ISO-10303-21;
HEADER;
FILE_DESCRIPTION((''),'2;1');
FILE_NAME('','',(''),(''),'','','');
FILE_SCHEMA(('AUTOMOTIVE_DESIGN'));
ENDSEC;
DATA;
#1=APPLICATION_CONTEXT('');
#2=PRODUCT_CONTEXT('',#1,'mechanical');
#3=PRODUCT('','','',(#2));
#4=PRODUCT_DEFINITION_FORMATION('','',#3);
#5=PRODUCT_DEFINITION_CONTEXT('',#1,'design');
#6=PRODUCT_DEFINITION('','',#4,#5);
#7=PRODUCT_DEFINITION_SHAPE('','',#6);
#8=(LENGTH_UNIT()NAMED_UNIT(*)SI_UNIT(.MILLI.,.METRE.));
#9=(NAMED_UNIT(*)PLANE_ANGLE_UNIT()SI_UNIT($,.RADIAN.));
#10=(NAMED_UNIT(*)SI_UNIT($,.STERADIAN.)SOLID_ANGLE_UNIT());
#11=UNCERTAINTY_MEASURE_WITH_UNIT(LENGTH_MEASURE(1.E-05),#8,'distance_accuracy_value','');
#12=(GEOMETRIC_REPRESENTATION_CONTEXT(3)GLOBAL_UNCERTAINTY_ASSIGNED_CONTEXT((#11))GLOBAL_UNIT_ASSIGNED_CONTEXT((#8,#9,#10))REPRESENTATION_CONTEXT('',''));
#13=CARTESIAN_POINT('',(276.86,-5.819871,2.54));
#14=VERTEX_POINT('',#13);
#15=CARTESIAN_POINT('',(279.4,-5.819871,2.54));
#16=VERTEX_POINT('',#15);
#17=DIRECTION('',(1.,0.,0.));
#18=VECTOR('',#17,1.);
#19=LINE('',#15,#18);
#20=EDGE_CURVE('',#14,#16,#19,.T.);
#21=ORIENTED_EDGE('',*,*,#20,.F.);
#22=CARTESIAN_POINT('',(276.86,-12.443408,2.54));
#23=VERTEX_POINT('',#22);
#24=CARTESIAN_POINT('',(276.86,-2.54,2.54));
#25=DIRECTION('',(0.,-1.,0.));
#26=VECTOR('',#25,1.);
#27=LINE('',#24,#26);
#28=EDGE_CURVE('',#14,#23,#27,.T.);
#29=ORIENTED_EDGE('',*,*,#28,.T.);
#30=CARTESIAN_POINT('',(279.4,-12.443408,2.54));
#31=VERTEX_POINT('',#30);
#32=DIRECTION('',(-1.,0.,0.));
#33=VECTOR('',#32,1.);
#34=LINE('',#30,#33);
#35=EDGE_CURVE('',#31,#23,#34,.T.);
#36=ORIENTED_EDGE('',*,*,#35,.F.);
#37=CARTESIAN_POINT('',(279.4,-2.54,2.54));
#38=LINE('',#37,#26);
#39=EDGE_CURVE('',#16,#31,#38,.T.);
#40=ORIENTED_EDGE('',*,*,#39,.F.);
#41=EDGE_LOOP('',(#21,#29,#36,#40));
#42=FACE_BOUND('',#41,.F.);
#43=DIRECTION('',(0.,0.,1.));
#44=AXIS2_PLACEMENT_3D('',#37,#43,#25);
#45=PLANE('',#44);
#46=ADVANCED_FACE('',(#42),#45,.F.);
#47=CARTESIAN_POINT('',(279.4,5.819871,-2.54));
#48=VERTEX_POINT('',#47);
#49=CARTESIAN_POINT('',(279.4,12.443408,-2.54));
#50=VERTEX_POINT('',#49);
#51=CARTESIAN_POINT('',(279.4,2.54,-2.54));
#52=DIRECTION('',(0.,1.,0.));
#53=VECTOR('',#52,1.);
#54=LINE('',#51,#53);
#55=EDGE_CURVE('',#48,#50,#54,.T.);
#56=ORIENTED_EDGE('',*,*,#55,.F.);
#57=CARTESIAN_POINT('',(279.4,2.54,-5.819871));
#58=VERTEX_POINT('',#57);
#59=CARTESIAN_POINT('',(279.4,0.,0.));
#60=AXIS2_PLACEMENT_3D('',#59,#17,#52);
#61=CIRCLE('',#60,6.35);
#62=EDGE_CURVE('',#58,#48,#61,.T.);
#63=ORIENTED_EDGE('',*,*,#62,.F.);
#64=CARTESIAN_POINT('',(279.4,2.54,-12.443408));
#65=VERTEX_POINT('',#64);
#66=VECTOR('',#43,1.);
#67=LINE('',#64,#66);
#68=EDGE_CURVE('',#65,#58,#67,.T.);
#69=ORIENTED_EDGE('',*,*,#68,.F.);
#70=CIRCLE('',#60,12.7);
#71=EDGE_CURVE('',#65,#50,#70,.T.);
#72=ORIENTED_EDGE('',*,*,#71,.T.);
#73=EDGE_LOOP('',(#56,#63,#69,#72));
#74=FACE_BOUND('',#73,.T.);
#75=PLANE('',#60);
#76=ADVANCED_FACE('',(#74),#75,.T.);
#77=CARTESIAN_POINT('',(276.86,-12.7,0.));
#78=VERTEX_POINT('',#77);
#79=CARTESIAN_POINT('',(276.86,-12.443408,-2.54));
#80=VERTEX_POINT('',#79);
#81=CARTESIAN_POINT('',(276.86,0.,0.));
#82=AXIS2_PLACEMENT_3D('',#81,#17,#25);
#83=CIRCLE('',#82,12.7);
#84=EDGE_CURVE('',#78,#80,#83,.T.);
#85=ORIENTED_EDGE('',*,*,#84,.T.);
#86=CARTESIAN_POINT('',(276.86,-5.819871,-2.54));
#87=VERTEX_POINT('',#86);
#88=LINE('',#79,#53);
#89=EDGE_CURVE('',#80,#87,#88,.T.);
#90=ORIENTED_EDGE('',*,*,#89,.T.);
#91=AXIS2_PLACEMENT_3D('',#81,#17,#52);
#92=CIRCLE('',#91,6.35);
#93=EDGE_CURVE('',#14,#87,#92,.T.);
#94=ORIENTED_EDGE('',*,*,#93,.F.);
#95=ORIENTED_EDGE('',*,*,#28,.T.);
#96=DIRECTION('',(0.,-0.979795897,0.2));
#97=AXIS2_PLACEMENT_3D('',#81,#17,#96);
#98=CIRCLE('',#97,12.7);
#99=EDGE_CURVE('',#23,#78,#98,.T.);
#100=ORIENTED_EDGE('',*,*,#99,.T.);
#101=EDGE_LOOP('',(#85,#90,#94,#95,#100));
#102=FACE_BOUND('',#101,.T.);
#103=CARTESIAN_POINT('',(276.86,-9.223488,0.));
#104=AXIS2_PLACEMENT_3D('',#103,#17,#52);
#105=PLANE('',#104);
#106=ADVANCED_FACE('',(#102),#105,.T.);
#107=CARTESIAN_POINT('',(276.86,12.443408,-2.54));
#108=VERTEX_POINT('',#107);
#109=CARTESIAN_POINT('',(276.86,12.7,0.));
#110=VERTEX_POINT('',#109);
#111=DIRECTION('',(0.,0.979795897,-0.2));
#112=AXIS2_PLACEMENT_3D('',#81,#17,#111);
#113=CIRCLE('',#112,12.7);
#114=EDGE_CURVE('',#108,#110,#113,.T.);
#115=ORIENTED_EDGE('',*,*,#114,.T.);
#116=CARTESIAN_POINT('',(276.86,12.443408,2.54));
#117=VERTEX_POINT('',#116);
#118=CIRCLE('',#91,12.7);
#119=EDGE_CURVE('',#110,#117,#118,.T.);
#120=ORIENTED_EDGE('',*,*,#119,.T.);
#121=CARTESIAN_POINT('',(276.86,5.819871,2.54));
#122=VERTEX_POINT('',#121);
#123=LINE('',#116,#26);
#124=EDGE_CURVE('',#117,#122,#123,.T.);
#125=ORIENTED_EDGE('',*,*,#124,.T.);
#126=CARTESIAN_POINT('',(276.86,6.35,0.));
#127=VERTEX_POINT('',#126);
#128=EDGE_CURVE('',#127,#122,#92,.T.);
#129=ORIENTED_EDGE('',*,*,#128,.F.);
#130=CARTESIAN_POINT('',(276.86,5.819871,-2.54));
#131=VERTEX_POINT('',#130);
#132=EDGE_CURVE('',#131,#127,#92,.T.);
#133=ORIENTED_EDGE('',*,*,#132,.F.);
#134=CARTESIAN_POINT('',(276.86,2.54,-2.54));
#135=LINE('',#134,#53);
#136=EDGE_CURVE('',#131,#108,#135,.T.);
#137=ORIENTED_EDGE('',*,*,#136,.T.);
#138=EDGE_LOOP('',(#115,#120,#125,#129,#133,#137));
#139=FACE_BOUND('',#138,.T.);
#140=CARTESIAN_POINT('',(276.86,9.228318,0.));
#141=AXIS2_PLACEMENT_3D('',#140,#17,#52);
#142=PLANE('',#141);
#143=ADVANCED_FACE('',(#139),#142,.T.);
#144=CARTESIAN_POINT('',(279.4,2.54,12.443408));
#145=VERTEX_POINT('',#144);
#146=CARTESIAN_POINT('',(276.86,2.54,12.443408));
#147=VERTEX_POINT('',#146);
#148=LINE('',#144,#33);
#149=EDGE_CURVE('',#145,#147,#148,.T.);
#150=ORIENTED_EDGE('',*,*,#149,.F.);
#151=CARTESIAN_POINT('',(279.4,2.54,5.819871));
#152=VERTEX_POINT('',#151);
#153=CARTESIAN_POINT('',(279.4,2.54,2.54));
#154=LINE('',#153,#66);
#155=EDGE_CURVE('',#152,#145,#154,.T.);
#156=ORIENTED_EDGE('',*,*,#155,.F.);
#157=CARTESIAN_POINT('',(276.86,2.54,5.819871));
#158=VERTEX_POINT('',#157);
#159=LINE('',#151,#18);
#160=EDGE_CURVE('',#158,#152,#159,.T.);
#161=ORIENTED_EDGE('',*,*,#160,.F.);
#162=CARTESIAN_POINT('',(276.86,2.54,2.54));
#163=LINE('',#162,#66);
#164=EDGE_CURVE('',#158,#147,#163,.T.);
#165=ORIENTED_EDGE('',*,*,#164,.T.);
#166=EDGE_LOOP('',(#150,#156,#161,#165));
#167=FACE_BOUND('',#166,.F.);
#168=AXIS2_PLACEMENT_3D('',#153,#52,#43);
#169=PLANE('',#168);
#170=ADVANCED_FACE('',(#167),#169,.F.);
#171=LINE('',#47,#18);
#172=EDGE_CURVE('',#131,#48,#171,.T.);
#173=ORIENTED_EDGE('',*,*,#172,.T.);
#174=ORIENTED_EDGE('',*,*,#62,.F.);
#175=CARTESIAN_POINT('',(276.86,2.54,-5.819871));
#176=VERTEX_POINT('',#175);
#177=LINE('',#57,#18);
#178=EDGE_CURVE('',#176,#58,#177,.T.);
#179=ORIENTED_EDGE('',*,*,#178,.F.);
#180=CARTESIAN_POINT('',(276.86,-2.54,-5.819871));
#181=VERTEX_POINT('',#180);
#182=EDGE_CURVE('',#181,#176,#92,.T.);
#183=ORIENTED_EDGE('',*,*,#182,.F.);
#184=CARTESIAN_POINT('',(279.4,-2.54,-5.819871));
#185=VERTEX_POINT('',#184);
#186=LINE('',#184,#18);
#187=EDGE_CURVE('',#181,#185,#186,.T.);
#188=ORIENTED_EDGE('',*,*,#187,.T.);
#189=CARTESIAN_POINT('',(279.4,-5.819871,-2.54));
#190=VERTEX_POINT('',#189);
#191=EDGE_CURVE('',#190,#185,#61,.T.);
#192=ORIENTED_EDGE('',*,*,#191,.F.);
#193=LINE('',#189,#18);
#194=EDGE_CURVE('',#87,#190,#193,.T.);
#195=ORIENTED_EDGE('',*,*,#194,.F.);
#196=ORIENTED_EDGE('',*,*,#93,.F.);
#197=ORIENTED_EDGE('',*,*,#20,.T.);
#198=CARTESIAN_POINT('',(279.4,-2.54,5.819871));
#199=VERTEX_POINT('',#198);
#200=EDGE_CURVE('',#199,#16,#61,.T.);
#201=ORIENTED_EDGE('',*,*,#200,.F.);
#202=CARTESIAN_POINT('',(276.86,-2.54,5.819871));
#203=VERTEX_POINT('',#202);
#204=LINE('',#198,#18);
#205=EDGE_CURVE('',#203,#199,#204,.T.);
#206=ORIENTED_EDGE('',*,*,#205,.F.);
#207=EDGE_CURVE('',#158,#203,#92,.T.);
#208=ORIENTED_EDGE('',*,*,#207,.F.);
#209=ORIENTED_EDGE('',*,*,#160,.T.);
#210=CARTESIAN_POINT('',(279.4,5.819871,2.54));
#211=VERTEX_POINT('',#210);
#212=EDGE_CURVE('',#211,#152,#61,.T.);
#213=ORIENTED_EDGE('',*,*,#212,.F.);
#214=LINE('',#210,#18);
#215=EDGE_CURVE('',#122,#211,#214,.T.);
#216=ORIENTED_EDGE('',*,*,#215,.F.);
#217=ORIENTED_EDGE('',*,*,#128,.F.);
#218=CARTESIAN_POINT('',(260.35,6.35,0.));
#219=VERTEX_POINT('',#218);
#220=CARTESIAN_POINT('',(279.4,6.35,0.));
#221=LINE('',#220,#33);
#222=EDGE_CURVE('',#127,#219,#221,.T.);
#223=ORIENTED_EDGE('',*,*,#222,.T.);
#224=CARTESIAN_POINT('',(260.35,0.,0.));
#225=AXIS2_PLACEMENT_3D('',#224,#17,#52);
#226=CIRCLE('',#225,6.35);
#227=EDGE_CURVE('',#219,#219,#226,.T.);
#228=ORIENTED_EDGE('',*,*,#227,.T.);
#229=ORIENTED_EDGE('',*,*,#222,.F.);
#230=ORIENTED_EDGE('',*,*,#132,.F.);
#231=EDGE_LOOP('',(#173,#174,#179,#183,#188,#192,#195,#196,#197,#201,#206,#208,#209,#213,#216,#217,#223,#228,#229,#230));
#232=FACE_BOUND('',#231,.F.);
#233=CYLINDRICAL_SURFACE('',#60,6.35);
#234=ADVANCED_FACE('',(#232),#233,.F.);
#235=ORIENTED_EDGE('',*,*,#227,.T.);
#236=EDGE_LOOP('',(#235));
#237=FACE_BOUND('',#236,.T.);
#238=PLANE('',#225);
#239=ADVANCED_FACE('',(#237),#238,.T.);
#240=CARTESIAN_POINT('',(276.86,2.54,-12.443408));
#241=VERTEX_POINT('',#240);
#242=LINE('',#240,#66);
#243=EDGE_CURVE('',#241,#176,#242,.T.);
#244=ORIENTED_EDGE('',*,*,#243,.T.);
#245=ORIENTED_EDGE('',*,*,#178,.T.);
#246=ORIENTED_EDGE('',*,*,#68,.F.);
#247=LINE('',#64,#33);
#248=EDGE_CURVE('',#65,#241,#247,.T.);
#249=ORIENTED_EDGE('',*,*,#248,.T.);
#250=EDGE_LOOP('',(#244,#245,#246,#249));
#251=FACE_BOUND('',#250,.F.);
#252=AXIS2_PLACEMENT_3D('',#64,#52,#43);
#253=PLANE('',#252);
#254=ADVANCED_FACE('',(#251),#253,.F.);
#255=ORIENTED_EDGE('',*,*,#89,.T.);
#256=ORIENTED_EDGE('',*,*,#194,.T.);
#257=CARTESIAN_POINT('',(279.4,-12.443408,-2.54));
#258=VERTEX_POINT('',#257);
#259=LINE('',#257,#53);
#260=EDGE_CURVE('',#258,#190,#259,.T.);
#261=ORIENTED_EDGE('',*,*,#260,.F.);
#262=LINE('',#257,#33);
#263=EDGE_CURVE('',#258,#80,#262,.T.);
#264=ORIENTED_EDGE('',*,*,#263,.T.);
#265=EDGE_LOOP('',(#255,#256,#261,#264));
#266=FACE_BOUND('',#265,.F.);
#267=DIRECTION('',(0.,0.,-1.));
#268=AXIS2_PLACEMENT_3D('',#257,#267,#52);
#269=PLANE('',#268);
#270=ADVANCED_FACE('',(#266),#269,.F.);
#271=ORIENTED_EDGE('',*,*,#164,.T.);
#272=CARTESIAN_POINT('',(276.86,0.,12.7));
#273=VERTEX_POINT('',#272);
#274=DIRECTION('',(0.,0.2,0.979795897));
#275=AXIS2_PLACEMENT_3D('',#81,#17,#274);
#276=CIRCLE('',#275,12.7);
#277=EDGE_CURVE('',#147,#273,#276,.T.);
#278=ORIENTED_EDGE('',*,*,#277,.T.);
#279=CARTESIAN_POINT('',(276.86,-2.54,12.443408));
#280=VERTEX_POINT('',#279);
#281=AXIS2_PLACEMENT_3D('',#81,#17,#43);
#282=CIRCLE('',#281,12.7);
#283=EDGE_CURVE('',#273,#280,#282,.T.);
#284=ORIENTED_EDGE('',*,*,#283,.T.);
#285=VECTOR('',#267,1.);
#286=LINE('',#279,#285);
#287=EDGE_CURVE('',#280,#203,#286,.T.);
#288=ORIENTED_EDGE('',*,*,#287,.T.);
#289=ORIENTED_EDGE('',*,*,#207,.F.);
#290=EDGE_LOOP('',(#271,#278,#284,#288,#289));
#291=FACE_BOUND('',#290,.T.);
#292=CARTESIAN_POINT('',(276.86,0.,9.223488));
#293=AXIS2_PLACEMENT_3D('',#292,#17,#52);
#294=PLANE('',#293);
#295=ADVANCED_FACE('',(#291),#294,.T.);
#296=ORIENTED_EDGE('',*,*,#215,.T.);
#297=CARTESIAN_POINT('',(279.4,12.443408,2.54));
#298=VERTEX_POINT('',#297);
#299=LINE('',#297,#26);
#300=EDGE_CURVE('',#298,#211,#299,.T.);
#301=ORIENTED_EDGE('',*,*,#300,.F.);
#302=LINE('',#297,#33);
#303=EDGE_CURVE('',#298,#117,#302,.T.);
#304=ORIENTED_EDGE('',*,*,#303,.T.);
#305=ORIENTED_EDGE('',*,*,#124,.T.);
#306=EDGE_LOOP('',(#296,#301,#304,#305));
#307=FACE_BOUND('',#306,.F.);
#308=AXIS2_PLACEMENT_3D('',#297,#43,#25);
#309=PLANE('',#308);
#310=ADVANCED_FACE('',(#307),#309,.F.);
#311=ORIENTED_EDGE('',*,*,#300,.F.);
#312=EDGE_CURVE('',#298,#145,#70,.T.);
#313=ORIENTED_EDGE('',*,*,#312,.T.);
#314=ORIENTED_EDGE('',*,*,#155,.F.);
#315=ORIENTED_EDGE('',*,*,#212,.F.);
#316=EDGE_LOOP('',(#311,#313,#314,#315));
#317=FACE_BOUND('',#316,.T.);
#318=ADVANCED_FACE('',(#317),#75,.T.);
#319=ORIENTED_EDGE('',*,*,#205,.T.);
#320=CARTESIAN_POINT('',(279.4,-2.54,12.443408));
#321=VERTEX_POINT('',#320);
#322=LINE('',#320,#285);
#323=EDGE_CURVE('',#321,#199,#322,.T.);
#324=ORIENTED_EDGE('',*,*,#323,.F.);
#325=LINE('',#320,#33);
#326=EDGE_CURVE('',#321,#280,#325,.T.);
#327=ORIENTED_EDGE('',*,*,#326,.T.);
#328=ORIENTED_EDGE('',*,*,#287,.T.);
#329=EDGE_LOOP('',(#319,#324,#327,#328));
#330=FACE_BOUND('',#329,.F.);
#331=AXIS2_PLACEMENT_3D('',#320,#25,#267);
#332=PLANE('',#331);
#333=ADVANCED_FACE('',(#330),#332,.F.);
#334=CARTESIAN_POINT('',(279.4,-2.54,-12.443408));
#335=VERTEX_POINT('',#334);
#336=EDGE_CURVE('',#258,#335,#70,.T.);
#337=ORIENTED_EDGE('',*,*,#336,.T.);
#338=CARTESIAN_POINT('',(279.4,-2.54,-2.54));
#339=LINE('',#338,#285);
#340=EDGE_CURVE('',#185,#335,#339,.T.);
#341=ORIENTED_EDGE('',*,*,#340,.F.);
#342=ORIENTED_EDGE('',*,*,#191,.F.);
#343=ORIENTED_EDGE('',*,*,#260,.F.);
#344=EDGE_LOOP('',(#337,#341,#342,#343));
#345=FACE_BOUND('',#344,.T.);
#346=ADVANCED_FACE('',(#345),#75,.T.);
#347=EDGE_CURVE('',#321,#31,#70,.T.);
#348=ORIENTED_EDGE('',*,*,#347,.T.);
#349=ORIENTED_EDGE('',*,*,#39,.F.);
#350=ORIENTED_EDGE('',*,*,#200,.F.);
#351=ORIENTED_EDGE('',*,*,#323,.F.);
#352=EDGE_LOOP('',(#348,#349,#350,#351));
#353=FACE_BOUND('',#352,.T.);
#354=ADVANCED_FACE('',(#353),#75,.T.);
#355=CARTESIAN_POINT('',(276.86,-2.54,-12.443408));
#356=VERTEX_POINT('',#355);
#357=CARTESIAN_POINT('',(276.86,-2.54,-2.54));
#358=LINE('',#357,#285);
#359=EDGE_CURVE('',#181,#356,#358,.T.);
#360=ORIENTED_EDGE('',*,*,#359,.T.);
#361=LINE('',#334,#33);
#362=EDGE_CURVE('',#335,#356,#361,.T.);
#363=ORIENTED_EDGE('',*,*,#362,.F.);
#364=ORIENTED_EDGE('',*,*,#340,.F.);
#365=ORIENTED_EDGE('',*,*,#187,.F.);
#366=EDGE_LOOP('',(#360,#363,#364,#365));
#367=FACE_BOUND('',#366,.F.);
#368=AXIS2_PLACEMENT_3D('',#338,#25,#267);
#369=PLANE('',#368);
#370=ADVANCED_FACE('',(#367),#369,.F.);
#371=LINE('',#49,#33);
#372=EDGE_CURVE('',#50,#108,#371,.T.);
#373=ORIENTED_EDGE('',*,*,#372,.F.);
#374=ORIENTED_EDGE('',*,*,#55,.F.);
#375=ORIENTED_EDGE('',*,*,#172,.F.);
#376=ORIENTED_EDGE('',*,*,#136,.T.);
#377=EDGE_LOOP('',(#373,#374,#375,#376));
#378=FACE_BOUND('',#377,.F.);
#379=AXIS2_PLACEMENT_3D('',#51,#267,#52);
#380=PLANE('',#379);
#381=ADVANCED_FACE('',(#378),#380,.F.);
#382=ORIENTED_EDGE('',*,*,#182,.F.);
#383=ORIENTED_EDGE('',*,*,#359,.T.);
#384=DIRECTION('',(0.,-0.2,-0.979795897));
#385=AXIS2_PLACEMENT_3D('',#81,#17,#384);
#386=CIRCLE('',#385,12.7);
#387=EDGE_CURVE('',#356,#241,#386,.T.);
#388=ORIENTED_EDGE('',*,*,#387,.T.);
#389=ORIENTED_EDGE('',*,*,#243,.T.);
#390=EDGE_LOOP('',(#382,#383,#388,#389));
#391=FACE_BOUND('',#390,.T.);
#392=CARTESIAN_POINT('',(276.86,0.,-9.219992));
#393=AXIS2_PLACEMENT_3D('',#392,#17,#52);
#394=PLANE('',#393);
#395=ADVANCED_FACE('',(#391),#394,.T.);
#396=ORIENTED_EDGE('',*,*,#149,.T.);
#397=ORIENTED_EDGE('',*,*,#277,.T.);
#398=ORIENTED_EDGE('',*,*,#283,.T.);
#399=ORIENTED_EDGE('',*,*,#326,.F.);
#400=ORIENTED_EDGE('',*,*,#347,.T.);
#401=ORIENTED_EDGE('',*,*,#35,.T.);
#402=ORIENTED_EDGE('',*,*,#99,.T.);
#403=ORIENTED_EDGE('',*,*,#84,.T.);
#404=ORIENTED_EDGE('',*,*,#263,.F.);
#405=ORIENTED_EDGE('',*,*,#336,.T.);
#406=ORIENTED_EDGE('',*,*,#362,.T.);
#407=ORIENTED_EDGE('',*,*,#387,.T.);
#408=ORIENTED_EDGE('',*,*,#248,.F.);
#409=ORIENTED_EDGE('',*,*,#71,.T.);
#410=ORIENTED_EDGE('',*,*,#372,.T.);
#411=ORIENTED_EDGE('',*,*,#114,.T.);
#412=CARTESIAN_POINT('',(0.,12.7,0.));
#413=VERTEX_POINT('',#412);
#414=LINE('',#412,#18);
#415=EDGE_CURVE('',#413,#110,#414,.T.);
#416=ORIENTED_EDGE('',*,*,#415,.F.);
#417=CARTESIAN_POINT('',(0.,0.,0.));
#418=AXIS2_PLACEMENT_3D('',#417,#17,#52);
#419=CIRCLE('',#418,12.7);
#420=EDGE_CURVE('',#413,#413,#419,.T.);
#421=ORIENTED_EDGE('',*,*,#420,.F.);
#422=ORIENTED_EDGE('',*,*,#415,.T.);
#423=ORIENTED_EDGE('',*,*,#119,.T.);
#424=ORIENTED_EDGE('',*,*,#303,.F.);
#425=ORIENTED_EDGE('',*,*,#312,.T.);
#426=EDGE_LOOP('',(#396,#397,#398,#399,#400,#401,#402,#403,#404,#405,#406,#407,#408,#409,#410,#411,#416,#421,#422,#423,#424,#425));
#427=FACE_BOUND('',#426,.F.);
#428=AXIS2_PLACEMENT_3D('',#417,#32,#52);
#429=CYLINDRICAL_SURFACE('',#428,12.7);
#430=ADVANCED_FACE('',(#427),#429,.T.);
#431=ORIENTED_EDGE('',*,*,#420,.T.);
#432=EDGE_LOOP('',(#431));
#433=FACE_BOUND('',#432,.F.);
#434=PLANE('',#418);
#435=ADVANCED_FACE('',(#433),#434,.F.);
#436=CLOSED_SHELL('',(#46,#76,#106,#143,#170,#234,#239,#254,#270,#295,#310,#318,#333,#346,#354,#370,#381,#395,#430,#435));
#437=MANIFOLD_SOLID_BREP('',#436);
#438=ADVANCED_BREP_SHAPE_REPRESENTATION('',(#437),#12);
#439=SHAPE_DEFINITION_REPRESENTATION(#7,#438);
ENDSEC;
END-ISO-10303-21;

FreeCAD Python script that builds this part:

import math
import FreeCAD as App
import Part
import Sketcher
Q = App.Units.Quantity

doc = App.newDocument("Part")
body = doc.addObject("PartDesign::Body", "Body")

# Sketch on YZ plane
sketch1 = body.newObject("Sketcher::SketchObject", "Sketch")
sketch1.AttachmentSupport = (doc.getObject("YZ_Plane"), [""])
sketch1.MapMode = "FlatFace"
sketch1.addGeometry(Part.Circle(App.Vector(0, 0, 0), App.Vector(0, 0, 1), 12.7), False)
sketch1.addConstraint([
    Sketcher.Constraint("Coincident", 0, 3, -1, 1),
    Sketcher.Constraint("Diameter", 0, Q("1 in")),
])
pad1 = body.newObject("PartDesign::Pad", "Pad")
pad1.Profile = sketch1
pad1.Length = Q("11 in")

# Sketch on YZ plane
sketch2 = body.newObject("Sketcher::SketchObject", "Sketch001")
sketch2.AttachmentSupport = (doc.getObject("YZ_Plane"), [""])
sketch2.MapMode = "FlatFace"
sketch2.AttachmentOffset = App.Placement(App.Vector(0, 0, 11 * 25.4), App.Rotation())
sketch2.addGeometry(Part.Circle(App.Vector(0, 0, 0), App.Vector(0, 0, 1), 6.35), False)
sketch2.addConstraint([
    Sketcher.Constraint("Coincident", 0, 3, -1, 1),
    Sketcher.Constraint("Diameter", 0, Q("0.5 in")),
])
pocket1 = body.newObject("PartDesign::Pocket", "Pocket")
pocket1.Profile = sketch2
pocket1.Length = Q("0.75 in")

# Sketch on YZ plane
sketch3 = body.newObject("Sketcher::SketchObject", "Sketch002")
sketch3.AttachmentSupport = (doc.getObject("YZ_Plane"), [""])
sketch3.MapMode = "FlatFace"
sketch3.AttachmentOffset = App.Placement(App.Vector(0, 0, 11 * 25.4), App.Rotation())
sketch3.addGeometry([
    Part.ArcOfCircle(Part.Circle(App.Vector(0, 0, 0), App.Vector(0, 0, 1), 12.7), math.radians(78.463041), math.radians(90)),  # 0
    Part.ArcOfCircle(Part.Circle(App.Vector(0, 0, 0), App.Vector(0, 0, 1), 12.7), math.radians(90), math.radians(101.536959)),  # 1
    Part.LineSegment(App.Vector(-2.54, 12.443408, 0), App.Vector(-2.54, 2.54, 0)),  # 2
    Part.LineSegment(App.Vector(-2.54, 2.54, 0), App.Vector(2.54, 2.54, 0)),  # 3
    Part.LineSegment(App.Vector(2.54, 2.54, 0), App.Vector(2.54, 12.443408, 0)),  # 4
    Part.ArcOfCircle(Part.Circle(App.Vector(0, 0, 0), App.Vector(0, 0, 1), 12.7), math.radians(168.463041), math.radians(180)),  # 5
    Part.ArcOfCircle(Part.Circle(App.Vector(0, 0, 0), App.Vector(0, 0, 1), 12.7), math.radians(180), math.radians(191.536959)),  # 6
    Part.LineSegment(App.Vector(-12.443408, -2.54, 0), App.Vector(-2.54, -2.54, 0)),  # 7
    Part.LineSegment(App.Vector(-2.54, -2.54, 0), App.Vector(-2.54, 2.54, 0)),  # 8
    Part.LineSegment(App.Vector(-2.54, 2.54, 0), App.Vector(-12.443408, 2.54, 0)),  # 9
    Part.ArcOfCircle(Part.Circle(App.Vector(0, 0, 0), App.Vector(0, 0, 1), 12.7), math.radians(-101.536959), math.radians(-78.463041)),  # 10
    Part.LineSegment(App.Vector(2.54, -12.443408, 0), App.Vector(2.54, -2.54, 0)),  # 11
    Part.LineSegment(App.Vector(2.54, -2.54, 0), App.Vector(-2.54, -2.54, 0)),  # 12
    Part.LineSegment(App.Vector(-2.54, -2.54, 0), App.Vector(-2.54, -12.443408, 0)),  # 13
    Part.ArcOfCircle(Part.Circle(App.Vector(0, 0, 0), App.Vector(0, 0, 1), 12.7), math.radians(0), math.radians(11.536959)),  # 14
    Part.LineSegment(App.Vector(12.443408, 2.54, 0), App.Vector(2.54, 2.54, 0)),  # 15
    Part.LineSegment(App.Vector(2.54, 2.54, 0), App.Vector(2.54, -2.54, 0)),  # 16
    Part.LineSegment(App.Vector(2.54, -2.54, 0), App.Vector(12.443408, -2.54, 0)),  # 17
    Part.ArcOfCircle(Part.Circle(App.Vector(0, 0, 0), App.Vector(0, 0, 1), 12.7), math.radians(-11.536959), math.radians(0)),  # 18
], False)
sketch3.addConstraint([
    Sketcher.Constraint("Tangent", 0, 2, 1, 1),
    Sketcher.Constraint("Coincident", 1, 2, 2, 1),
    Sketcher.Constraint("Coincident", 2, 2, 3, 1),
    Sketcher.Constraint("Coincident", 3, 2, 4, 1),
    Sketcher.Constraint("Coincident", 4, 2, 0, 1),
    Sketcher.Constraint("Tangent", 5, 2, 6, 1),
    Sketcher.Constraint("Coincident", 6, 2, 7, 1),
    Sketcher.Constraint("Coincident", 7, 2, 8, 1),
    Sketcher.Constraint("Coincident", 8, 2, 9, 1),
    Sketcher.Constraint("Coincident", 9, 2, 5, 1),
    Sketcher.Constraint("Coincident", 10, 2, 11, 1),
    Sketcher.Constraint("Coincident", 11, 2, 12, 1),
    Sketcher.Constraint("Coincident", 12, 2, 13, 1),
    Sketcher.Constraint("Coincident", 13, 2, 10, 1),
    Sketcher.Constraint("Coincident", 14, 2, 15, 1),
    Sketcher.Constraint("Coincident", 15, 2, 16, 1),
    Sketcher.Constraint("Coincident", 16, 2, 17, 1),
    Sketcher.Constraint("Coincident", 17, 2, 18, 1),
    Sketcher.Constraint("Tangent", 18, 2, 14, 1),
    Sketcher.Constraint("Vertical", 2),
    Sketcher.Constraint("Horizontal", 3),
    Sketcher.Constraint("Vertical", 4),
    Sketcher.Constraint("Horizontal", 7),
    Sketcher.Constraint("Vertical", 8),
    Sketcher.Constraint("Horizontal", 9),
    Sketcher.Constraint("Vertical", 11),
    Sketcher.Constraint("Horizontal", 12),
    Sketcher.Constraint("Vertical", 13),
    Sketcher.Constraint("Horizontal", 15),
    Sketcher.Constraint("Vertical", 16),
    Sketcher.Constraint("Horizontal", 17),
    Sketcher.Constraint("Coincident", 0, 3, -1, 1),
    Sketcher.Constraint("Coincident", 5, 3, -1, 1),
    Sketcher.Constraint("Coincident", 10, 3, -1, 1),
    Sketcher.Constraint("Coincident", 14, 3, -1, 1),
    Sketcher.Constraint("Coincident", 8, 2, 2, 2),
    Sketcher.Constraint("Coincident", 12, 2, 7, 2),
    Sketcher.Constraint("Coincident", 15, 2, 3, 2),
    Sketcher.Constraint("Coincident", 16, 2, 11, 2),
    Sketcher.Constraint("Equal", 0, 1),
    Sketcher.Constraint("Equal", 1, 5),
    Sketcher.Constraint("Equal", 5, 6),
    Sketcher.Constraint("Equal", 6, 10),
    Sketcher.Constraint("Equal", 10, 14),
    Sketcher.Constraint("Equal", 14, 18),
    Sketcher.Constraint("Symmetric", 3, 2, 7, 2, -1, 1),
    Sketcher.Constraint("PointOnObject", 0, 2, -2),
    Sketcher.Constraint("PointOnObject", 5, 2, -1),
    Sketcher.Constraint("PointOnObject", 18, 2, -1),
    Sketcher.Constraint("Equal", 17, 2),
    Sketcher.Constraint("Radius", 0, Q("0.5 in")),
    Sketcher.Constraint("DistanceX", 3, 1, 3, 2, Q("0.2 in")),
])
pocket2 = body.newObject("PartDesign::Pocket", "Pocket001")
pocket2.Profile = sketch3
pocket2.Length = Q("0.1 in")

doc.recompute()
